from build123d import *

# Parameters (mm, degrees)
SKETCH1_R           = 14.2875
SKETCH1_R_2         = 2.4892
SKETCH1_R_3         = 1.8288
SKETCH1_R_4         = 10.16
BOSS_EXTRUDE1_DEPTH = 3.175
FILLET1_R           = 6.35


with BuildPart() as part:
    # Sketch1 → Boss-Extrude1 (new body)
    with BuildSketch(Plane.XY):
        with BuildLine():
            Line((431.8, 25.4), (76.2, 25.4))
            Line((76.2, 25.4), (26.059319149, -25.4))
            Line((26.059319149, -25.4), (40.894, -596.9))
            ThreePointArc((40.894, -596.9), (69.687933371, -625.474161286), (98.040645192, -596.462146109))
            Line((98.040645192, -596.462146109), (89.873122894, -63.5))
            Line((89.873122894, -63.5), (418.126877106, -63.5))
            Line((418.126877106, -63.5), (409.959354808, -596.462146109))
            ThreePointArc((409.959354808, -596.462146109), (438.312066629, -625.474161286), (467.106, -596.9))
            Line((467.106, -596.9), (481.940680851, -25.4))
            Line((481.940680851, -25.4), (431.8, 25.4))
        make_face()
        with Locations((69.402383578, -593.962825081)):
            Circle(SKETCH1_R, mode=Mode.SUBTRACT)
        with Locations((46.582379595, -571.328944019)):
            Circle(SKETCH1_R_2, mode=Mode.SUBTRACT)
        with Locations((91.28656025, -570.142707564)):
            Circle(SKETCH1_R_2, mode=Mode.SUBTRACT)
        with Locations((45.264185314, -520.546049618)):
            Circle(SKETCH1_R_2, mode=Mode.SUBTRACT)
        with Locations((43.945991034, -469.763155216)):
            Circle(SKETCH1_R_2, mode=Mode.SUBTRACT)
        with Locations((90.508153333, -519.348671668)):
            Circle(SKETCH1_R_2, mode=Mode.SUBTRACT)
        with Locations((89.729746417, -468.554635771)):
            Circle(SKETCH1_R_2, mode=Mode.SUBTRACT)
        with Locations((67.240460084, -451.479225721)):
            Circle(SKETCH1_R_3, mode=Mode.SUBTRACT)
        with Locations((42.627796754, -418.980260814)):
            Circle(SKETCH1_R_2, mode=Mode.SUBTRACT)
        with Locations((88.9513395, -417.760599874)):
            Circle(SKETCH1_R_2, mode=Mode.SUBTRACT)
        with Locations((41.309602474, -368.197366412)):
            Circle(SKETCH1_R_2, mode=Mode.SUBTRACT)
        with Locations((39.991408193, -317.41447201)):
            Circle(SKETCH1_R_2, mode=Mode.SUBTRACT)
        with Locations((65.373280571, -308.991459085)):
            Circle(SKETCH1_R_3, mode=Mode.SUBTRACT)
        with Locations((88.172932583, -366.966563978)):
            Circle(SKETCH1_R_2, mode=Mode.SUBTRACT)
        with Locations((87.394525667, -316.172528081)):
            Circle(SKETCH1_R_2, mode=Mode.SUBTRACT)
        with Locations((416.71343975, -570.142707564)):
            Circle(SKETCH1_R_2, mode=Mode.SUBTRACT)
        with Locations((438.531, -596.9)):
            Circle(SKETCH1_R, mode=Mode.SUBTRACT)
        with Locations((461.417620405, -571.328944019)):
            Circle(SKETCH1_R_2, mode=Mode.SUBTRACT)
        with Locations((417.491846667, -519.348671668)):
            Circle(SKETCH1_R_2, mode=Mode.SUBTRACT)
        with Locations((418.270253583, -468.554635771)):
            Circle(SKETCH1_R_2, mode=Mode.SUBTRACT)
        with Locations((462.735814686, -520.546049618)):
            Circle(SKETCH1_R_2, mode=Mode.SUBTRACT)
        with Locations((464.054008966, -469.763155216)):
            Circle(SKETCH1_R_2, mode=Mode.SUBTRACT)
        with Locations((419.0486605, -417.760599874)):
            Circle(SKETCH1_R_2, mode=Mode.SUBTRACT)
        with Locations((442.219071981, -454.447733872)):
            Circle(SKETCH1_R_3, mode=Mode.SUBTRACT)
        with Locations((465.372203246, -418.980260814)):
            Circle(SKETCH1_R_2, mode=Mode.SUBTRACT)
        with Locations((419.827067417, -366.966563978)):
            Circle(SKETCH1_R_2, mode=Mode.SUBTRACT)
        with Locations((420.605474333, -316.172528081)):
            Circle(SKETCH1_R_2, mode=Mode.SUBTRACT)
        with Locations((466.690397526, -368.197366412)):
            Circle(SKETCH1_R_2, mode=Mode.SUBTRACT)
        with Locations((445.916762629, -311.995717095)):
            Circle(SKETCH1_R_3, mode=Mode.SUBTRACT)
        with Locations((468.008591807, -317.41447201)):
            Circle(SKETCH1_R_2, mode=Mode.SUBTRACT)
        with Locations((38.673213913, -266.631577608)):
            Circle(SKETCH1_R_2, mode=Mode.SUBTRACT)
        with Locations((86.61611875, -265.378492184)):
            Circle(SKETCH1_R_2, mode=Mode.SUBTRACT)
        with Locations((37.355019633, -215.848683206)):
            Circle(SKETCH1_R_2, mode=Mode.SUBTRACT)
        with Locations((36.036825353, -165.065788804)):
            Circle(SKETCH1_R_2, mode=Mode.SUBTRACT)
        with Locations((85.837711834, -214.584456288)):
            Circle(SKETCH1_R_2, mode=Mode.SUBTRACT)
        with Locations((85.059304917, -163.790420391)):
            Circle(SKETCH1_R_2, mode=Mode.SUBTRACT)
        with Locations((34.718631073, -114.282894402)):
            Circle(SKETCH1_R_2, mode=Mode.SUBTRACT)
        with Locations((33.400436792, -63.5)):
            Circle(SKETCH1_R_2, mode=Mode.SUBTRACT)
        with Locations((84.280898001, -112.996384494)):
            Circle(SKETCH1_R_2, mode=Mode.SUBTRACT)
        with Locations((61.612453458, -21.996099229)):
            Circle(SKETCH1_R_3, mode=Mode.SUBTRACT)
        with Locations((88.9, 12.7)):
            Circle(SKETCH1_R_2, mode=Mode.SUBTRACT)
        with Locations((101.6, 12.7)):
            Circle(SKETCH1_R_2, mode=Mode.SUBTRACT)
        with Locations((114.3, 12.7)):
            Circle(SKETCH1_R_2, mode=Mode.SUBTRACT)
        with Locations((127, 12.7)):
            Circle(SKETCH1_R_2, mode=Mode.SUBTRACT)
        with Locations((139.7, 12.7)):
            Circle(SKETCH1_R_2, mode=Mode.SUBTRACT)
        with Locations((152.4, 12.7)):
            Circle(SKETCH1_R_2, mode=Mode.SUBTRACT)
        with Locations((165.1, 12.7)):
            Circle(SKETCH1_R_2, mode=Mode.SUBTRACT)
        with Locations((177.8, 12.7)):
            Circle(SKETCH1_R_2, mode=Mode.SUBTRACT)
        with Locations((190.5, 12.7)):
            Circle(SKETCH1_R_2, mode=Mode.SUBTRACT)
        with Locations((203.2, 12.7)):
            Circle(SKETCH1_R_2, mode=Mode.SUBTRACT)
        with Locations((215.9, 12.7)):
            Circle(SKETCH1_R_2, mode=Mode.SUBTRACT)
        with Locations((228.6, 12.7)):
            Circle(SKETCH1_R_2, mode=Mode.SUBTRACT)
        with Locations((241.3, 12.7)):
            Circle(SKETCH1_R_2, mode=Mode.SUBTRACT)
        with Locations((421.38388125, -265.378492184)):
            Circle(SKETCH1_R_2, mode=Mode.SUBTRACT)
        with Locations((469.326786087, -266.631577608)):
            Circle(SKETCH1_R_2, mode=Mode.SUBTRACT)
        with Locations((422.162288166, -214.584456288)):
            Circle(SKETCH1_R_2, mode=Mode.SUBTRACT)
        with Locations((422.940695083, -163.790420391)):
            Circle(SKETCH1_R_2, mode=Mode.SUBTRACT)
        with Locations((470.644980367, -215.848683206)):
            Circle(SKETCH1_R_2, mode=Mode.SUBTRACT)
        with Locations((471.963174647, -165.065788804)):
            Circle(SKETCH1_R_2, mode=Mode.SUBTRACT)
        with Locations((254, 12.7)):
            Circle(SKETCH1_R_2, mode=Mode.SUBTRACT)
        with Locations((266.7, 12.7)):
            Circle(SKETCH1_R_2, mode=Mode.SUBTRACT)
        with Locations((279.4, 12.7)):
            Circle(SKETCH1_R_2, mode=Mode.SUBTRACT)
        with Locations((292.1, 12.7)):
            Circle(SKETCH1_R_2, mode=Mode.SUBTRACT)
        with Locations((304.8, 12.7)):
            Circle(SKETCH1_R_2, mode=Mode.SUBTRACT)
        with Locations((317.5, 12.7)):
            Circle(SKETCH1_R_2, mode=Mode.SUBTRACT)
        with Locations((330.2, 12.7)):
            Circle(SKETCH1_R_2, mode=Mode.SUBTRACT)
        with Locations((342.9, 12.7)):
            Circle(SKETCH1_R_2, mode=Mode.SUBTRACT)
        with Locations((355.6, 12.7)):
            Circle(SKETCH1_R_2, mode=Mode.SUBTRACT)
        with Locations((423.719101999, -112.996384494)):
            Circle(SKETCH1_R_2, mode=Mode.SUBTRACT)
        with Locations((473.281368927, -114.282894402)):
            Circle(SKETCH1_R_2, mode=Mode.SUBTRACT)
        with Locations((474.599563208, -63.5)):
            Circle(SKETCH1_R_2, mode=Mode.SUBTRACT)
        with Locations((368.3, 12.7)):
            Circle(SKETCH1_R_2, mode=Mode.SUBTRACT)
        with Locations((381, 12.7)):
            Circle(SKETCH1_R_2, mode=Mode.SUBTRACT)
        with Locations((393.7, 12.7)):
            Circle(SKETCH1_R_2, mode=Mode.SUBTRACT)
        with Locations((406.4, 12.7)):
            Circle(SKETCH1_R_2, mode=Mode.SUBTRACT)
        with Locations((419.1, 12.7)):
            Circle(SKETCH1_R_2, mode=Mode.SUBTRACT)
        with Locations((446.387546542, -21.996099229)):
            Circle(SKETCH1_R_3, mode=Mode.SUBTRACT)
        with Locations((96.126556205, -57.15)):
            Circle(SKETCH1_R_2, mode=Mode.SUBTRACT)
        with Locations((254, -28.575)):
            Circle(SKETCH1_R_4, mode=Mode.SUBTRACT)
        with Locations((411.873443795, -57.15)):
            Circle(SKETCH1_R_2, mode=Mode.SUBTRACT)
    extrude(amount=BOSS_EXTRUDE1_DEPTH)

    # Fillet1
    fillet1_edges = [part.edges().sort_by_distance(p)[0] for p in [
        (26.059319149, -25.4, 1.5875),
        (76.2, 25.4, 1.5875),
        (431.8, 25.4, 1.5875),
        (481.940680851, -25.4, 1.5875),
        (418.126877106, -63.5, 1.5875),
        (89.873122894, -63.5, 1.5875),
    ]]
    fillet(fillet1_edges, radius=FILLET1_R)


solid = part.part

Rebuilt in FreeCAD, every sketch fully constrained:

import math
import FreeCAD as App
import Part
import Sketcher
Q = App.Units.Quantity


def edges_at(feature, points):
    """Names of the edges that pass closest to the given points."""
    edges = feature.Shape.Edges
    near = lambda p: min(range(len(edges)), key=lambda i: edges[i].distToShape(Part.Vertex(*p))[0])
    return sorted({f"Edge{near(p) + 1}" for p in points})

doc = App.newDocument("Part")
body = doc.addObject("PartDesign::Body", "Body")

# Sketch on XY plane
sketch1 = body.newObject("Sketcher::SketchObject", "Sketch")
sketch1.AttachmentSupport = (doc.getObject("XY_Plane"), [""])
sketch1.MapMode = "FlatFace"
sketch1.addGeometry(Part.LineSegment(App.Vector(431.8, 25.4, 0), App.Vector(76.2, 25.4, 0)), False)
sketch1.addGeometry(Part.LineSegment(App.Vector(76.2, 25.4, 0), App.Vector(26.1, -25.4, 0)), False)
sketch1.addGeometry(Part.LineSegment(App.Vector(26.1, -25.4, 0), App.Vector(40.9, -596.9, 0)), False)
sketch1.addGeometry(Part.ArcOfCircle(Part.Circle(App.Vector(69.5, -596.9, 0), App.Vector(0, 0, 1), 28.6), math.radians(180), math.radians(361)), False)
sketch1.addGeometry(Part.LineSegment(App.Vector(98, -596.5, 0), App.Vector(89.9, -63.5, 0)), False)
sketch1.addGeometry(Part.LineSegment(App.Vector(89.9, -63.5, 0), App.Vector(418.1, -63.5, 0)), False)
sketch1.addGeometry(Part.LineSegment(App.Vector(418.1, -63.5, 0), App.Vector(410, -596.5, 0)), False)
sketch1.addGeometry(Part.ArcOfCircle(Part.Circle(App.Vector(438.5, -596.9, 0), App.Vector(0, 0, 1), 28.6), math.radians(179), math.radians(360)), False)
sketch1.addGeometry(Part.LineSegment(App.Vector(467.1, -596.9, 0), App.Vector(481.9, -25.4, 0)), False)
sketch1.addGeometry(Part.LineSegment(App.Vector(481.9, -25.4, 0), App.Vector(431.8, 25.4, 0)), False)
sketch1.addGeometry(Part.Circle(App.Vector(69.4, -594, 0), App.Vector(0, 0, 1), 14.3), False)
sketch1.addGeometry(Part.Circle(App.Vector(46.6, -571.3, 0), App.Vector(0, 0, 1), 2.5), False)
sketch1.addGeometry(Part.Circle(App.Vector(91.3, -570.1, 0), App.Vector(0, 0, 1), 2.5), False)
sketch1.addGeometry(Part.Circle(App.Vector(45.3, -520.5, 0), App.Vector(0, 0, 1), 2.5), False)
sketch1.addGeometry(Part.Circle(App.Vector(43.9, -469.8, 0), App.Vector(0, 0, 1), 2.5), False)
sketch1.addGeometry(Part.Circle(App.Vector(90.5, -519.3, 0), App.Vector(0, 0, 1), 2.5), False)
sketch1.addGeometry(Part.Circle(App.Vector(89.7, -468.6, 0), App.Vector(0, 0, 1), 2.5), False)
sketch1.addGeometry(Part.Circle(App.Vector(42.6, -419, 0), App.Vector(0, 0, 1), 2.5), False)
sketch1.addGeometry(Part.Circle(App.Vector(67.2, -451.5, 0), App.Vector(0, 0, 1), 1.8), False)
sketch1.addGeometry(Part.Circle(App.Vector(89, -417.8, 0), App.Vector(0, 0, 1), 2.5), False)
sketch1.addGeometry(Part.Circle(App.Vector(41.3, -368.2, 0), App.Vector(0, 0, 1), 2.5), False)
sketch1.addGeometry(Part.Circle(App.Vector(40, -317.4, 0), App.Vector(0, 0, 1), 2.5), False)
sketch1.addGeometry(Part.Circle(App.Vector(65.4, -309, 0), App.Vector(0, 0, 1), 1.8), False)
sketch1.addGeometry(Part.Circle(App.Vector(88.2, -367, 0), App.Vector(0, 0, 1), 2.5), False)
sketch1.addGeometry(Part.Circle(App.Vector(87.4, -316.2, 0), App.Vector(0, 0, 1), 2.5), False)
sketch1.addGeometry(Part.Circle(App.Vector(416.7, -570.1, 0), App.Vector(0, 0, 1), 2.5), False)
sketch1.addGeometry(Part.Circle(App.Vector(438.5, -596.9, 0), App.Vector(0, 0, 1), 14.3), False)
sketch1.addGeometry(Part.Circle(App.Vector(461.4, -571.3, 0), App.Vector(0, 0, 1), 2.5), False)
sketch1.addGeometry(Part.Circle(App.Vector(417.5, -519.3, 0), App.Vector(0, 0, 1), 2.5), False)
sketch1.addGeometry(Part.Circle(App.Vector(418.3, -468.6, 0), App.Vector(0, 0, 1), 2.5), False)
sketch1.addGeometry(Part.Circle(App.Vector(462.7, -520.5, 0), App.Vector(0, 0, 1), 2.5), False)
sketch1.addGeometry(Part.Circle(App.Vector(464.1, -469.8, 0), App.Vector(0, 0, 1), 2.5), False)
sketch1.addGeometry(Part.Circle(App.Vector(419, -417.8, 0), App.Vector(0, 0, 1), 2.5), False)
sketch1.addGeometry(Part.Circle(App.Vector(442.2, -454.4, 0), App.Vector(0, 0, 1), 1.8), False)
sketch1.addGeometry(Part.Circle(App.Vector(465.4, -419, 0), App.Vector(0, 0, 1), 2.5), False)
sketch1.addGeometry(Part.Circle(App.Vector(419.8, -367, 0), App.Vector(0, 0, 1), 2.5), False)
sketch1.addGeometry(Part.Circle(App.Vector(420.6, -316.2, 0), App.Vector(0, 0, 1), 2.5), False)
sketch1.addGeometry(Part.Circle(App.Vector(466.7, -368.2, 0), App.Vector(0, 0, 1), 2.5), False)
sketch1.addGeometry(Part.Circle(App.Vector(445.9, -312, 0), App.Vector(0, 0, 1), 1.8), False)
sketch1.addGeometry(Part.Circle(App.Vector(468, -317.4, 0), App.Vector(0, 0, 1), 2.5), False)
sketch1.addGeometry(Part.Circle(App.Vector(38.7, -266.6, 0), App.Vector(0, 0, 1), 2.5), False)
sketch1.addGeometry(Part.Circle(App.Vector(86.6, -265.4, 0), App.Vector(0, 0, 1), 2.5), False)
sketch1.addGeometry(Part.Circle(App.Vector(37.4, -215.8, 0), App.Vector(0, 0, 1), 2.5), False)
sketch1.addGeometry(Part.Circle(App.Vector(85.8, -214.6, 0), App.Vector(0, 0, 1), 2.5), False)
sketch1.addGeometry(Part.Circle(App.Vector(36, -165.1, 0), App.Vector(0, 0, 1), 2.5), False)
sketch1.addGeometry(Part.Circle(App.Vector(85.1, -163.8, 0), App.Vector(0, 0, 1), 2.5), False)
sketch1.addGeometry(Part.Circle(App.Vector(34.7, -114.3, 0), App.Vector(0, 0, 1), 2.5), False)
sketch1.addGeometry(Part.Circle(App.Vector(84.3, -113, 0), App.Vector(0, 0, 1), 2.5), False)
sketch1.addGeometry(Part.Circle(App.Vector(33.4, -63.5, 0), App.Vector(0, 0, 1), 2.5), False)
sketch1.addGeometry(Part.Circle(App.Vector(61.6, -22, 0), App.Vector(0, 0, 1), 1.8), False)
sketch1.addGeometry(Part.Circle(App.Vector(96.1, -57.1, 0), App.Vector(0, 0, 1), 2.5), False)
sketch1.addGeometry(Part.Circle(App.Vector(88.9, 12.7, 0), App.Vector(0, 0, 1), 2.5), False)
sketch1.addGeometry(Part.Circle(App.Vector(101.6, 12.7, 0), App.Vector(0, 0, 1), 2.5), False)
sketch1.addGeometry(Part.Circle(App.Vector(114.3, 12.7, 0), App.Vector(0, 0, 1), 2.5), False)
sketch1.addGeometry(Part.Circle(App.Vector(127, 12.7, 0), App.Vector(0, 0, 1), 2.5), False)
sketch1.addGeometry(Part.Circle(App.Vector(139.7, 12.7, 0), App.Vector(0, 0, 1), 2.5), False)
sketch1.addGeometry(Part.Circle(App.Vector(152.4, 12.7, 0), App.Vector(0, 0, 1), 2.5), False)
sketch1.addGeometry(Part.Circle(App.Vector(165.1, 12.7, 0), App.Vector(0, 0, 1), 2.5), False)
sketch1.addGeometry(Part.Circle(App.Vector(177.8, 12.7, 0), App.Vector(0, 0, 1), 2.5), False)
sketch1.addGeometry(Part.Circle(App.Vector(190.5, 12.7, 0), App.Vector(0, 0, 1), 2.5), False)
sketch1.addGeometry(Part.Circle(App.Vector(203.2, 12.7, 0), App.Vector(0, 0, 1), 2.5), False)
sketch1.addGeometry(Part.Circle(App.Vector(215.9, 12.7, 0), App.Vector(0, 0, 1), 2.5), False)
sketch1.addGeometry(Part.Circle(App.Vector(228.6, 12.7, 0), App.Vector(0, 0, 1), 2.5), False)
sketch1.addGeometry(Part.Circle(App.Vector(241.3, 12.7, 0), App.Vector(0, 0, 1), 2.5), False)
sketch1.addGeometry(Part.Circle(App.Vector(421.4, -265.4, 0), App.Vector(0, 0, 1), 2.5), False)
sketch1.addGeometry(Part.Circle(App.Vector(469.3, -266.6, 0), App.Vector(0, 0, 1), 2.5), False)
sketch1.addGeometry(Part.Circle(App.Vector(422.2, -214.6, 0), App.Vector(0, 0, 1), 2.5), False)
sketch1.addGeometry(Part.Circle(App.Vector(470.6, -215.8, 0), App.Vector(0, 0, 1), 2.5), False)
sketch1.addGeometry(Part.Circle(App.Vector(422.9, -163.8, 0), App.Vector(0, 0, 1), 2.5), False)
sketch1.addGeometry(Part.Circle(App.Vector(472, -165.1, 0), App.Vector(0, 0, 1), 2.5), False)
sketch1.addGeometry(Part.Circle(App.Vector(254, -28.6, 0), App.Vector(0, 0, 1), 10.2), False)
sketch1.addGeometry(Part.Circle(App.Vector(254, 12.7, 0), App.Vector(0, 0, 1), 2.5), False)
sketch1.addGeometry(Part.Circle(App.Vector(266.7, 12.7, 0), App.Vector(0, 0, 1), 2.5), False)
sketch1.addGeometry(Part.Circle(App.Vector(279.4, 12.7, 0), App.Vector(0, 0, 1), 2.5), False)
sketch1.addGeometry(Part.Circle(App.Vector(292.1, 12.7, 0), App.Vector(0, 0, 1), 2.5), False)
sketch1.addGeometry(Part.Circle(App.Vector(304.8, 12.7, 0), App.Vector(0, 0, 1), 2.5), False)
sketch1.addGeometry(Part.Circle(App.Vector(317.5, 12.7, 0), App.Vector(0, 0, 1), 2.5), False)
sketch1.addGeometry(Part.Circle(App.Vector(330.2, 12.7, 0), App.Vector(0, 0, 1), 2.5), False)
sketch1.addGeometry(Part.Circle(App.Vector(342.9, 12.7, 0), App.Vector(0, 0, 1), 2.5), False)
sketch1.addGeometry(Part.Circle(App.Vector(355.6, 12.7, 0), App.Vector(0, 0, 1), 2.5), False)
sketch1.addGeometry(Part.Circle(App.Vector(423.7, -113, 0), App.Vector(0, 0, 1), 2.5), False)
sketch1.addGeometry(Part.Circle(App.Vector(473.3, -114.3, 0), App.Vector(0, 0, 1), 2.5), False)
sketch1.addGeometry(Part.Circle(App.Vector(474.6, -63.5, 0), App.Vector(0, 0, 1), 2.5), False)
sketch1.addGeometry(Part.Circle(App.Vector(411.9, -57.1, 0), App.Vector(0, 0, 1), 2.5), False)
sketch1.addGeometry(Part.Circle(App.Vector(368.3, 12.7, 0), App.Vector(0, 0, 1), 2.5), False)
sketch1.addGeometry(Part.Circle(App.Vector(381, 12.7, 0), App.Vector(0, 0, 1), 2.5), False)
sketch1.addGeometry(Part.Circle(App.Vector(393.7, 12.7, 0), App.Vector(0, 0, 1), 2.5), False)
sketch1.addGeometry(Part.Circle(App.Vector(406.4, 12.7, 0), App.Vector(0, 0, 1), 2.5), False)
sketch1.addGeometry(Part.Circle(App.Vector(419.1, 12.7, 0), App.Vector(0, 0, 1), 2.5), False)
sketch1.addGeometry(Part.Circle(App.Vector(446.4, -22, 0), App.Vector(0, 0, 1), 1.8), False)
sketch1.addConstraint(Sketcher.Constraint("Coincident", 0, 2, 1, 1))
sketch1.addConstraint(Sketcher.Constraint("Coincident", 1, 2, 2, 1))
sketch1.addConstraint(Sketcher.Constraint("Coincident", 2, 2, 3, 1))
sketch1.addConstraint(Sketcher.Constraint("Tangent", 3, 2, 4, 1))
sketch1.addConstraint(Sketcher.Constraint("Coincident", 4, 2, 5, 1))
sketch1.addConstraint(Sketcher.Constraint("Coincident", 5, 2, 6, 1))
sketch1.addConstraint(Sketcher.Constraint("Tangent", 6, 2, 7, 1))
sketch1.addConstraint(Sketcher.Constraint("Coincident", 7, 2, 8, 1))
sketch1.addConstraint(Sketcher.Constraint("Coincident", 8, 2, 9, 1))
sketch1.addConstraint(Sketcher.Constraint("Coincident", 9, 2, 0, 1))
sketch1.addConstraint(Sketcher.Constraint("Horizontal", 0))
sketch1.addConstraint(Sketcher.Constraint("Horizontal", 5))
sketch1.addConstraint(Sketcher.Constraint("Coincident", 26, 3, 7, 3))
sketch1.addConstraint(Sketcher.Constraint("Equal", 3, 7))
sketch1.addConstraint(Sketcher.Constraint("Equal", 11, 12))
sketch1.addConstraint(Sketcher.Constraint("Equal", 12, 13))
sketch1.addConstraint(Sketcher.Constraint("Equal", 13, 14))
sketch1.addConstraint(Sketcher.Constraint("Equal", 14, 15))
sketch1.addConstraint(Sketcher.Constraint("Equal", 15, 16))
sketch1.addConstraint(Sketcher.Constraint("Equal", 16, 17))
sketch1.addConstraint(Sketcher.Constraint("Equal", 17, 19))
sketch1.addConstraint(Sketcher.Constraint("Equal", 19, 20))
sketch1.addConstraint(Sketcher.Constraint("Equal", 20, 21))
sketch1.addConstraint(Sketcher.Constraint("Equal", 18, 22))
sketch1.addConstraint(Sketcher.Constraint("Equal", 21, 23))
sketch1.addConstraint(Sketcher.Constraint("Equal", 23, 24))
sketch1.addConstraint(Sketcher.Constraint("Equal", 24, 25))
sketch1.addConstraint(Sketcher.Constraint("Equal", 10, 26))
sketch1.addConstraint(Sketcher.Constraint("Equal", 25, 27))
sketch1.addConstraint(Sketcher.Constraint("Equal", 27, 28))
sketch1.addConstraint(Sketcher.Constraint("Equal", 28, 29))
sketch1.addConstraint(Sketcher.Constraint("Equal", 29, 30))
sketch1.addConstraint(Sketcher.Constraint("Equal", 30, 31))
sketch1.addConstraint(Sketcher.Constraint("Equal", 31, 32))
sketch1.addConstraint(Sketcher.Constraint("Equal", 22, 33))
sketch1.addConstraint(Sketcher.Constraint("Equal", 32, 34))
sketch1.addConstraint(Sketcher.Constraint("Equal", 34, 35))
sketch1.addConstraint(Sketcher.Constraint("Equal", 35, 36))
sketch1.addConstraint(Sketcher.Constraint("Equal", 36, 37))
sketch1.addConstraint(Sketcher.Constraint("Equal", 33, 38))
sketch1.addConstraint(Sketcher.Constraint("Equal", 37, 39))
sketch1.addConstraint(Sketcher.Constraint("Equal", 39, 40))
sketch1.addConstraint(Sketcher.Constraint("Equal", 40, 41))
sketch1.addConstraint(Sketcher.Constraint("Equal", 41, 42))
sketch1.addConstraint(Sketcher.Constraint("Equal", 42, 43))
sketch1.addConstraint(Sketcher.Constraint("Equal", 43, 44))
sketch1.addConstraint(Sketcher.Constraint("Equal", 44, 45))
sketch1.addConstraint(Sketcher.Constraint("Equal", 45, 46))
sketch1.addConstraint(Sketcher.Constraint("Equal", 46, 47))
sketch1.addConstraint(Sketcher.Constraint("Equal", 47, 48))
sketch1.addConstraint(Sketcher.Constraint("Equal", 38, 49))
sketch1.addConstraint(Sketcher.Constraint("Equal", 48, 50))
sketch1.addConstraint(Sketcher.Constraint("Equal", 50, 51))
sketch1.addConstraint(Sketcher.Constraint("Equal", 51, 52))
sketch1.addConstraint(Sketcher.Constraint("Equal", 52, 53))
sketch1.addConstraint(Sketcher.Constraint("Equal", 53, 54))
sketch1.addConstraint(Sketcher.Constraint("Equal", 54, 55))
sketch1.addConstraint(Sketcher.Constraint("Equal", 55, 56))
sketch1.addConstraint(Sketcher.Constraint("Equal", 56, 57))
sketch1.addConstraint(Sketcher.Constraint("Equal", 57, 58))
sketch1.addConstraint(Sketcher.Constraint("Equal", 58, 59))
sketch1.addConstraint(Sketcher.Constraint("Equal", 59, 60))
sketch1.addConstraint(Sketcher.Constraint("Equal", 60, 61))
sketch1.addConstraint(Sketcher.Constraint("Equal", 61, 62))
sketch1.addConstraint(Sketcher.Constraint("Equal", 62, 63))
sketch1.addConstraint(Sketcher.Constraint("Equal", 63, 64))
sketch1.addConstraint(Sketcher.Constraint("Equal", 64, 65))
sketch1.addConstraint(Sketcher.Constraint("Equal", 65, 66))
sketch1.addConstraint(Sketcher.Constraint("Equal", 66, 67))
sketch1.addConstraint(Sketcher.Constraint("Equal", 67, 68))
sketch1.addConstraint(Sketcher.Constraint("Equal", 68, 69))
sketch1.addConstraint(Sketcher.Constraint("Equal", 69, 71))
sketch1.addConstraint(Sketcher.Constraint("Equal", 71, 72))
sketch1.addConstraint(Sketcher.Constraint("Equal", 72, 73))
sketch1.addConstraint(Sketcher.Constraint("Equal", 73, 74))
sketch1.addConstraint(Sketcher.Constraint("Equal", 74, 75))
sketch1.addConstraint(Sketcher.Constraint("Equal", 75, 76))
sketch1.addConstraint(Sketcher.Constraint("Equal", 76, 77))
sketch1.addConstraint(Sketcher.Constraint("Equal", 77, 78))
sketch1.addConstraint(Sketcher.Constraint("Equal", 78, 79))
sketch1.addConstraint(Sketcher.Constraint("Equal", 79, 80))
sketch1.addConstraint(Sketcher.Constraint("Equal", 80, 81))
sketch1.addConstraint(Sketcher.Constraint("Equal", 81, 82))
sketch1.addConstraint(Sketcher.Constraint("Equal", 82, 83))
sketch1.addConstraint(Sketcher.Constraint("Equal", 83, 84))
sketch1.addConstraint(Sketcher.Constraint("Equal", 84, 85))
sketch1.addConstraint(Sketcher.Constraint("Equal", 85, 86))
sketch1.addConstraint(Sketcher.Constraint("Equal", 86, 87))
sketch1.addConstraint(Sketcher.Constraint("Equal", 87, 88))
sketch1.addConstraint(Sketcher.Constraint("Equal", 49, 89))
sketch1.addConstraint(Sketcher.Constraint("Horizontal", 3, 3, 7, 3))
sketch1.addConstraint(Sketcher.Constraint("Horizontal", 12, 3, 25, 3))
sketch1.addConstraint(Sketcher.Constraint("Horizontal", 11, 3, 27, 3))
sketch1.addConstraint(Sketcher.Constraint("Horizontal", 15, 3, 28, 3))
sketch1.addConstraint(Sketcher.Constraint("Horizontal", 16, 3, 29, 3))
sketch1.addConstraint(Sketcher.Constraint("Horizontal", 13, 3, 30, 3))
sketch1.addConstraint(Sketcher.Constraint("Horizontal", 14, 3, 31, 3))
sketch1.addConstraint(Sketcher.Constraint("Horizontal", 19, 3, 32, 3))
sketch1.addConstraint(Sketcher.Constraint("Horizontal", 17, 3, 34, 3))
sketch1.addConstraint(Sketcher.Constraint("Horizontal", 23, 3, 35, 3))
sketch1.addConstraint(Sketcher.Constraint("Horizontal", 24, 3, 36, 3))
sketch1.addConstraint(Sketcher.Constraint("Horizontal", 20, 3, 37, 3))
sketch1.addConstraint(Sketcher.Constraint("Horizontal", 21, 3, 39, 3))
sketch1.addConstraint(Sketcher.Constraint("Horizontal", 51, 3, 52, 3))
sketch1.addConstraint(Sketcher.Constraint("Horizontal", 52, 3, 53, 3))
sketch1.addConstraint(Sketcher.Constraint("Horizontal", 53, 3, 54, 3))
sketch1.addConstraint(Sketcher.Constraint("Horizontal", 54, 3, 55, 3))
sketch1.addConstraint(Sketcher.Constraint("Horizontal", 55, 3, 56, 3))
sketch1.addConstraint(Sketcher.Constraint("Horizontal", 56, 3, 57, 3))
sketch1.addConstraint(Sketcher.Constraint("Horizontal", 57, 3, 58, 3))
sketch1.addConstraint(Sketcher.Constraint("Horizontal", 58, 3, 59, 3))
sketch1.addConstraint(Sketcher.Constraint("Horizontal", 59, 3, 60, 3))
sketch1.addConstraint(Sketcher.Constraint("Horizontal", 60, 3, 61, 3))
sketch1.addConstraint(Sketcher.Constraint("Horizontal", 61, 3, 62, 3))
sketch1.addConstraint(Sketcher.Constraint("Horizontal", 62, 3, 63, 3))
sketch1.addConstraint(Sketcher.Constraint("Horizontal", 41, 3, 64, 3))
sketch1.addConstraint(Sketcher.Constraint("Horizontal", 40, 3, 65, 3))
sketch1.addConstraint(Sketcher.Constraint("Horizontal", 43, 3, 66, 3))
sketch1.addConstraint(Sketcher.Constraint("Horizontal", 42, 3, 67, 3))
sketch1.addConstraint(Sketcher.Constraint("Horizontal", 45, 3, 68, 3))
sketch1.addConstraint(Sketcher.Constraint("Horizontal", 44, 3, 69, 3))
sketch1.addConstraint(Sketcher.Constraint("Horizontal", 63, 3, 71, 3))
sketch1.addConstraint(Sketcher.Constraint("Horizontal", 71, 3, 72, 3))
sketch1.addConstraint(Sketcher.Constraint("Horizontal", 72, 3, 73, 3))
sketch1.addConstraint(Sketcher.Constraint("Horizontal", 73, 3, 74, 3))
sketch1.addConstraint(Sketcher.Constraint("Horizontal", 74, 3, 75, 3))
sketch1.addConstraint(Sketcher.Constraint("Horizontal", 75, 3, 76, 3))
sketch1.addConstraint(Sketcher.Constraint("Horizontal", 76, 3, 77, 3))
sketch1.addConstraint(Sketcher.Constraint("Horizontal", 77, 3, 78, 3))
sketch1.addConstraint(Sketcher.Constraint("Horizontal", 78, 3, 79, 3))
sketch1.addConstraint(Sketcher.Constraint("Horizontal", 47, 3, 80, 3))
sketch1.addConstraint(Sketcher.Constraint("Horizontal", 46, 3, 81, 3))
sketch1.addConstraint(Sketcher.Constraint("Horizontal", 48, 3, 82, 3))
sketch1.addConstraint(Sketcher.Constraint("Horizontal", 50, 3, 83, 3))
sketch1.addConstraint(Sketcher.Constraint("Horizontal", 79, 3, 84, 3))
sketch1.addConstraint(Sketcher.Constraint("Horizontal", 84, 3, 85, 3))
sketch1.addConstraint(Sketcher.Constraint("Horizontal", 85, 3, 86, 3))
sketch1.addConstraint(Sketcher.Constraint("Horizontal", 86, 3, 87, 3))
sketch1.addConstraint(Sketcher.Constraint("Horizontal", 87, 3, 88, 3))
sketch1.addConstraint(Sketcher.Constraint("Horizontal", 49, 3, 89, 3))
sketch1.addConstraint(Sketcher.Constraint("Horizontal", 26, 3, 2, 2))
sketch1.addConstraint(Sketcher.Constraint("Horizontal", 82, 3, 4, 2))
sketch1.addConstraint(Sketcher.Constraint("Horizontal", 3, 2, 6, 2))
sketch1.addConstraint(Sketcher.Constraint("Horizontal", 2, 2, 7, 2))
sketch1.addConstraint(Sketcher.Constraint("Horizontal", 1, 2, 8, 2))
sketch1.addConstraint(Sketcher.Constraint("Vertical", 70, 3, 71, 3))
sketch1.addConstraint(Sketcher.Constraint("Equal", 2, 8))
sketch1.addConstraint(Sketcher.Constraint("Equal", 1, 9))
sketch1.addConstraint(Sketcher.Constraint("Diameter", 70, Q("0.8 in")))
sketch1.addConstraint(Sketcher.Constraint("DistanceX", 0, 2, 0, 1, Q("14 in")))
sketch1.addConstraint(Sketcher.Constraint("Diameter", 10, Q("1.125 in")))
sketch1.addConstraint(Sketcher.Constraint("Diameter", 11, Q("0.196 in")))
sketch1.addConstraint(Sketcher.Constraint("Diameter", 18, Q("0.144 in")))
sketch1.addConstraint(Sketcher.Constraint("DistanceX", -1, 1, 52, 3, Q("4 in")))
sketch1.addConstraint(Sketcher.Constraint("DistanceX", -1, 1, 54, 3, Q("5 in")))
sketch1.addConstraint(Sketcher.Constraint("DistanceX", -1, 1, 56, 3, Q("6 in")))
sketch1.addConstraint(Sketcher.Constraint("DistanceX", -1, 1, 58, 3, Q("7 in")))
sketch1.addConstraint(Sketcher.Constraint("DistanceX", -1, 1, 60, 3, Q("8 in")))
sketch1.addConstraint(Sketcher.Constraint("DistanceX", -1, 1, 62, 3, Q("9 in")))
sketch1.addConstraint(Sketcher.Constraint("DistanceX", -1, 1, 70, 3, Q("10 in")))
sketch1.addConstraint(Sketcher.Constraint("DistanceX", -1, 1, 73, 3, Q("11 in")))
sketch1.addConstraint(Sketcher.Constraint("DistanceX", -1, 1, 75, 3, Q("12 in")))
sketch1.addConstraint(Sketcher.Constraint("DistanceX", -1, 1, 77, 3, Q("13 in")))
sketch1.addConstraint(Sketcher.Constraint("DistanceX", -1, 1, 79, 3, Q("14 in")))
sketch1.addConstraint(Sketcher.Constraint("DistanceX", -1, 1, 85, 3, Q("15 in")))
sketch1.addConstraint(Sketcher.Constraint("DistanceX", -1, 1, 87, 3, Q("16 in")))
sketch1.addConstraint(Sketcher.Constraint("DistanceX", -1, 1, 0, 2, Q("3 in")))
sketch1.addConstraint(Sketcher.Constraint("DistanceY", -1, 1, 0, 2, Q("1 in")))
sketch1.addConstraint(Sketcher.Constraint("DistanceY", 1, 2, -1, 1, Q("1 in")))
sketch1.addConstraint(Sketcher.Constraint("Radius", 3, Q("1.125 in")))
sketch1.addConstraint(Sketcher.Constraint("DistanceY", 3, 3, -1, 1, Q("23.5 in")))
sketch1.addConstraint(Sketcher.Constraint("DistanceY", 48, 3, -1, 1, Q("2.5 in")))
sketch1.addConstraint(Sketcher.Constraint("DistanceX", -1, 1, 51, 3, Q("3.5 in")))
sketch1.addConstraint(Sketcher.Constraint("DistanceY", -1, 1, 51, 3, Q("0.5 in")))
sketch1.addConstraint(Sketcher.Constraint("DistanceX", -1, 1, 53, 3, Q("4.5 in")))
sketch1.addConstraint(Sketcher.Constraint("DistanceX", -1, 1, 55, 3, Q("5.5 in")))
sketch1.addConstraint(Sketcher.Constraint("DistanceX", -1, 1, 57, 3, Q("6.5 in")))
sketch1.addConstraint(Sketcher.Constraint("DistanceX", -1, 1, 59, 3, Q("7.5 in")))
sketch1.addConstraint(Sketcher.Constraint("DistanceX", -1, 1, 61, 3, Q("8.5 in")))
sketch1.addConstraint(Sketcher.Constraint("DistanceX", -1, 1, 63, 3, Q("9.5 in")))
sketch1.addConstraint(Sketcher.Constraint("DistanceX", -1, 1, 72, 3, Q("10.5 in")))
sketch1.addConstraint(Sketcher.Constraint("DistanceX", -1, 1, 74, 3, Q("11.5 in")))
sketch1.addConstraint(Sketcher.Constraint("DistanceX", -1, 1, 76, 3, Q("12.5 in")))
sketch1.addConstraint(Sketcher.Constraint("DistanceX", -1, 1, 78, 3, Q("13.5 in")))
sketch1.addConstraint(Sketcher.Constraint("DistanceX", -1, 1, 84, 3, Q("14.5 in")))
sketch1.addConstraint(Sketcher.Constraint("DistanceX", -1, 1, 86, 3, Q("15.5 in")))
sketch1.addConstraint(Sketcher.Constraint("DistanceX", -1, 1, 88, 3, Q("16.5 in")))
sketch1.addConstraint(Sketcher.Constraint("DistanceY", 50, 3, -1, 1, Q("2.25 in")))
sketch1.addConstraint(Sketcher.Constraint("DistanceX", -1, 1, 2, 2, Q("1.61 in")))
sketch1.addConstraint(Sketcher.Constraint("DistanceY", 70, 3, -1, 1, Q("1.125 in")))
sketch1.addConstraint(Sketcher.Constraint("DistanceY", 19, 3, -1, 1, 417.7606))
sketch1.addConstraint(Sketcher.Constraint("DistanceX", -1, 1, 47, 3, 84.280898))
sketch1.addConstraint(Sketcher.Constraint("DistanceY", 49, 3, -1, 1, 21.996099))
sketch1.addConstraint(Sketcher.Constraint("DistanceX", -1, 1, 80, 3, 423.719102))
sketch1.addConstraint(Sketcher.Constraint("DistanceX", 5, 1, 5, 2, 328.253754))
sketch1.addConstraint(Sketcher.Constraint("DistanceX", -1, 1, 11, 3, 46.58238))
sketch1.addConstraint(Sketcher.Constraint("DistanceX", -1, 1, 12, 3, 91.28656))
sketch1.addConstraint(Sketcher.Constraint("DistanceY", 13, 3, -1, 1, 520.54605))
sketch1.addConstraint(Sketcher.Constraint("DistanceX", -1, 1, 14, 3, 43.945991))
sketch1.addConstraint(Sketcher.Constraint("DistanceY", 15, 3, -1, 1, 519.348672))
sketch1.addConstraint(Sketcher.Constraint("DistanceY", 17, 3, -1, 1, 418.980261))
sketch1.addConstraint(Sketcher.Constraint("DistanceX", -1, 1, 18, 3, 67.24046))
sketch1.addConstraint(Sketcher.Constraint("DistanceX", -1, 1, 19, 3, 88.95134))
sketch1.addConstraint(Sketcher.Constraint("DistanceX", -1, 1, 21, 3, 39.991408))
sketch1.addConstraint(Sketcher.Constraint("DistanceX", -1, 1, 22, 3, 65.373281))
sketch1.addConstraint(Sketcher.Constraint("DistanceY", 22, 3, -1, 1, 308.991459))
sketch1.addConstraint(Sketcher.Constraint("DistanceY", 24, 3, -1, 1, 316.172528))
sketch1.addConstraint(Sketcher.Constraint("DistanceX", -1, 1, 25, 3, 416.71344))
sketch1.addConstraint(Sketcher.Constraint("DistanceX", -1, 1, 27, 3, 461.41762))
sketch1.addConstraint(Sketcher.Constraint("DistanceX", -1, 1, 31, 3, 464.054009))
sketch1.addConstraint(Sketcher.Constraint("DistanceX", -1, 1, 32, 3, 419.04866))
sketch1.addConstraint(Sketcher.Constraint("DistanceX", -1, 1, 33, 3, 442.219072))
sketch1.addConstraint(Sketcher.Constraint("DistanceX", -1, 1, 39, 3, 468.008592))
sketch1.addConstraint(Sketcher.Constraint("DistanceX", -1, 1, 41, 3, 86.616119))
sketch1.addConstraint(Sketcher.Constraint("DistanceX", -1, 1, 42, 3, 37.35502))
sketch1.addConstraint(Sketcher.Constraint("DistanceX", -1, 1, 43, 3, 85.837712))
sketch1.addConstraint(Sketcher.Constraint("DistanceY", 44, 3, -1, 1, 165.065789))
sketch1.addConstraint(Sketcher.Constraint("DistanceY", 45, 3, -1, 1, 163.79042))
sketch1.addConstraint(Sketcher.Constraint("DistanceX", -1, 1, 46, 3, 34.718631))
sketch1.addConstraint(Sketcher.Constraint("DistanceX", -1, 1, 64, 3, 421.383881))
sketch1.addConstraint(Sketcher.Constraint("DistanceX", -1, 1, 66, 3, 422.162288))
sketch1.addConstraint(Sketcher.Constraint("DistanceX", -1, 1, 67, 3, 470.64498))
sketch1.addConstraint(Sketcher.Constraint("DistanceX", -1, 1, 81, 3, 473.281369))
sketch1.addConstraint(Sketcher.Constraint("DistanceX", -1, 1, 1, 2, 26.059319))
sketch1.addConstraint(Sketcher.Constraint("DistanceX", -1, 1, 10, 3, 69.402384))
sketch1.addConstraint(Sketcher.Constraint("DistanceY", 10, 3, -1, 1, 593.962825))
sketch1.addConstraint(Sketcher.Constraint("DistanceY", 11, 3, -1, 1, 571.328944))
sketch1.addConstraint(Sketcher.Constraint("DistanceY", 12, 3, -1, 1, 570.142708))
sketch1.addConstraint(Sketcher.Constraint("DistanceX", -1, 1, 13, 3, 45.264185))
sketch1.addConstraint(Sketcher.Constraint("DistanceY", 14, 3, -1, 1, 469.763155))
sketch1.addConstraint(Sketcher.Constraint("DistanceX", -1, 1, 15, 3, 90.508153))
sketch1.addConstraint(Sketcher.Constraint("DistanceX", -1, 1, 16, 3, 89.729746))
sketch1.addConstraint(Sketcher.Constraint("DistanceY", 16, 3, -1, 1, 468.554636))
sketch1.addConstraint(Sketcher.Constraint("DistanceX", -1, 1, 17, 3, 42.627797))
sketch1.addConstraint(Sketcher.Constraint("DistanceY", 18, 3, -1, 1, 451.479226))
sketch1.addConstraint(Sketcher.Constraint("DistanceX", -1, 1, 20, 3, 41.309602))
sketch1.addConstraint(Sketcher.Constraint("DistanceY", 20, 3, -1, 1, 368.197366))
sketch1.addConstraint(Sketcher.Constraint("DistanceY", 21, 3, -1, 1, 317.414472))
sketch1.addConstraint(Sketcher.Constraint("DistanceX", -1, 1, 23, 3, 88.172933))
sketch1.addConstraint(Sketcher.Constraint("DistanceY", 23, 3, -1, 1, 366.966564))
sketch1.addConstraint(Sketcher.Constraint("DistanceX", -1, 1, 24, 3, 87.394526))
sketch1.addConstraint(Sketcher.Constraint("DistanceX", -1, 1, 28, 3, 417.491847))
sketch1.addConstraint(Sketcher.Constraint("DistanceX", -1, 1, 29, 3, 418.270254))
sketch1.addConstraint(Sketcher.Constraint("DistanceX", -1, 1, 30, 3, 462.735815))
sketch1.addConstraint(Sketcher.Constraint("DistanceY", 33, 3, -1, 1, 454.447734))
sketch1.addConstraint(Sketcher.Constraint("DistanceX", -1, 1, 34, 3, 465.372203))
sketch1.addConstraint(Sketcher.Constraint("DistanceX", -1, 1, 35, 3, 419.827067))
sketch1.addConstraint(Sketcher.Constraint("DistanceX", -1, 1, 36, 3, 420.605474))
sketch1.addConstraint(Sketcher.Constraint("DistanceX", -1, 1, 37, 3, 466.690398))
sketch1.addConstraint(Sketcher.Constraint("DistanceX", -1, 1, 38, 3, 445.916763))
sketch1.addConstraint(Sketcher.Constraint("DistanceY", 38, 3, -1, 1, 311.995717))
sketch1.addConstraint(Sketcher.Constraint("DistanceX", -1, 1, 40, 3, 38.673214))
sketch1.addConstraint(Sketcher.Constraint("DistanceY", 40, 3, -1, 1, 266.631578))
sketch1.addConstraint(Sketcher.Constraint("DistanceY", 41, 3, -1, 1, 265.378492))
sketch1.addConstraint(Sketcher.Constraint("DistanceY", 42, 3, -1, 1, 215.848683))
sketch1.addConstraint(Sketcher.Constraint("DistanceY", 43, 3, -1, 1, 214.584456))
sketch1.addConstraint(Sketcher.Constraint("DistanceX", -1, 1, 44, 3, 36.036825))
sketch1.addConstraint(Sketcher.Constraint("DistanceX", -1, 1, 45, 3, 85.059305))
sketch1.addConstraint(Sketcher.Constraint("DistanceY", 46, 3, -1, 1, 114.282894))
sketch1.addConstraint(Sketcher.Constraint("DistanceY", 47, 3, -1, 1, 112.996384))
sketch1.addConstraint(Sketcher.Constraint("DistanceX", -1, 1, 48, 3, 33.400437))
sketch1.addConstraint(Sketcher.Constraint("DistanceX", -1, 1, 49, 3, 61.612453))
sketch1.addConstraint(Sketcher.Constraint("DistanceX", -1, 1, 50, 3, 96.126556))
sketch1.addConstraint(Sketcher.Constraint("DistanceX", -1, 1, 65, 3, 469.326786))
sketch1.addConstraint(Sketcher.Constraint("DistanceX", -1, 1, 68, 3, 422.940695))
sketch1.addConstraint(Sketcher.Constraint("DistanceX", -1, 1, 69, 3, 471.963175))
sketch1.addConstraint(Sketcher.Constraint("DistanceX", -1, 1, 82, 3, 474.599563))
sketch1.addConstraint(Sketcher.Constraint("DistanceX", -1, 1, 83, 3, 411.873444))
sketch1.addConstraint(Sketcher.Constraint("DistanceX", -1, 1, 89, 3, 446.387547))
pad1 = body.newObject("PartDesign::Pad", "Pad")
pad1.Profile = sketch1
pad1.Length = Q("0.125 in")
doc.recompute()

fillet = body.newObject("PartDesign::Fillet", "Fillet")
fillet.Base = (pad1, edges_at(pad1, [
    (26.059, -25.4, 1.587),
    (76.2, 25.4, 1.587),
    (431.8, 25.4, 1.587),
    (481.941, -25.4, 1.587),
    (418.127, -63.5, 1.587),
    (89.873, -63.5, 1.587),
]))
fillet.Radius = Q("0.25 in")

doc.recompute()
